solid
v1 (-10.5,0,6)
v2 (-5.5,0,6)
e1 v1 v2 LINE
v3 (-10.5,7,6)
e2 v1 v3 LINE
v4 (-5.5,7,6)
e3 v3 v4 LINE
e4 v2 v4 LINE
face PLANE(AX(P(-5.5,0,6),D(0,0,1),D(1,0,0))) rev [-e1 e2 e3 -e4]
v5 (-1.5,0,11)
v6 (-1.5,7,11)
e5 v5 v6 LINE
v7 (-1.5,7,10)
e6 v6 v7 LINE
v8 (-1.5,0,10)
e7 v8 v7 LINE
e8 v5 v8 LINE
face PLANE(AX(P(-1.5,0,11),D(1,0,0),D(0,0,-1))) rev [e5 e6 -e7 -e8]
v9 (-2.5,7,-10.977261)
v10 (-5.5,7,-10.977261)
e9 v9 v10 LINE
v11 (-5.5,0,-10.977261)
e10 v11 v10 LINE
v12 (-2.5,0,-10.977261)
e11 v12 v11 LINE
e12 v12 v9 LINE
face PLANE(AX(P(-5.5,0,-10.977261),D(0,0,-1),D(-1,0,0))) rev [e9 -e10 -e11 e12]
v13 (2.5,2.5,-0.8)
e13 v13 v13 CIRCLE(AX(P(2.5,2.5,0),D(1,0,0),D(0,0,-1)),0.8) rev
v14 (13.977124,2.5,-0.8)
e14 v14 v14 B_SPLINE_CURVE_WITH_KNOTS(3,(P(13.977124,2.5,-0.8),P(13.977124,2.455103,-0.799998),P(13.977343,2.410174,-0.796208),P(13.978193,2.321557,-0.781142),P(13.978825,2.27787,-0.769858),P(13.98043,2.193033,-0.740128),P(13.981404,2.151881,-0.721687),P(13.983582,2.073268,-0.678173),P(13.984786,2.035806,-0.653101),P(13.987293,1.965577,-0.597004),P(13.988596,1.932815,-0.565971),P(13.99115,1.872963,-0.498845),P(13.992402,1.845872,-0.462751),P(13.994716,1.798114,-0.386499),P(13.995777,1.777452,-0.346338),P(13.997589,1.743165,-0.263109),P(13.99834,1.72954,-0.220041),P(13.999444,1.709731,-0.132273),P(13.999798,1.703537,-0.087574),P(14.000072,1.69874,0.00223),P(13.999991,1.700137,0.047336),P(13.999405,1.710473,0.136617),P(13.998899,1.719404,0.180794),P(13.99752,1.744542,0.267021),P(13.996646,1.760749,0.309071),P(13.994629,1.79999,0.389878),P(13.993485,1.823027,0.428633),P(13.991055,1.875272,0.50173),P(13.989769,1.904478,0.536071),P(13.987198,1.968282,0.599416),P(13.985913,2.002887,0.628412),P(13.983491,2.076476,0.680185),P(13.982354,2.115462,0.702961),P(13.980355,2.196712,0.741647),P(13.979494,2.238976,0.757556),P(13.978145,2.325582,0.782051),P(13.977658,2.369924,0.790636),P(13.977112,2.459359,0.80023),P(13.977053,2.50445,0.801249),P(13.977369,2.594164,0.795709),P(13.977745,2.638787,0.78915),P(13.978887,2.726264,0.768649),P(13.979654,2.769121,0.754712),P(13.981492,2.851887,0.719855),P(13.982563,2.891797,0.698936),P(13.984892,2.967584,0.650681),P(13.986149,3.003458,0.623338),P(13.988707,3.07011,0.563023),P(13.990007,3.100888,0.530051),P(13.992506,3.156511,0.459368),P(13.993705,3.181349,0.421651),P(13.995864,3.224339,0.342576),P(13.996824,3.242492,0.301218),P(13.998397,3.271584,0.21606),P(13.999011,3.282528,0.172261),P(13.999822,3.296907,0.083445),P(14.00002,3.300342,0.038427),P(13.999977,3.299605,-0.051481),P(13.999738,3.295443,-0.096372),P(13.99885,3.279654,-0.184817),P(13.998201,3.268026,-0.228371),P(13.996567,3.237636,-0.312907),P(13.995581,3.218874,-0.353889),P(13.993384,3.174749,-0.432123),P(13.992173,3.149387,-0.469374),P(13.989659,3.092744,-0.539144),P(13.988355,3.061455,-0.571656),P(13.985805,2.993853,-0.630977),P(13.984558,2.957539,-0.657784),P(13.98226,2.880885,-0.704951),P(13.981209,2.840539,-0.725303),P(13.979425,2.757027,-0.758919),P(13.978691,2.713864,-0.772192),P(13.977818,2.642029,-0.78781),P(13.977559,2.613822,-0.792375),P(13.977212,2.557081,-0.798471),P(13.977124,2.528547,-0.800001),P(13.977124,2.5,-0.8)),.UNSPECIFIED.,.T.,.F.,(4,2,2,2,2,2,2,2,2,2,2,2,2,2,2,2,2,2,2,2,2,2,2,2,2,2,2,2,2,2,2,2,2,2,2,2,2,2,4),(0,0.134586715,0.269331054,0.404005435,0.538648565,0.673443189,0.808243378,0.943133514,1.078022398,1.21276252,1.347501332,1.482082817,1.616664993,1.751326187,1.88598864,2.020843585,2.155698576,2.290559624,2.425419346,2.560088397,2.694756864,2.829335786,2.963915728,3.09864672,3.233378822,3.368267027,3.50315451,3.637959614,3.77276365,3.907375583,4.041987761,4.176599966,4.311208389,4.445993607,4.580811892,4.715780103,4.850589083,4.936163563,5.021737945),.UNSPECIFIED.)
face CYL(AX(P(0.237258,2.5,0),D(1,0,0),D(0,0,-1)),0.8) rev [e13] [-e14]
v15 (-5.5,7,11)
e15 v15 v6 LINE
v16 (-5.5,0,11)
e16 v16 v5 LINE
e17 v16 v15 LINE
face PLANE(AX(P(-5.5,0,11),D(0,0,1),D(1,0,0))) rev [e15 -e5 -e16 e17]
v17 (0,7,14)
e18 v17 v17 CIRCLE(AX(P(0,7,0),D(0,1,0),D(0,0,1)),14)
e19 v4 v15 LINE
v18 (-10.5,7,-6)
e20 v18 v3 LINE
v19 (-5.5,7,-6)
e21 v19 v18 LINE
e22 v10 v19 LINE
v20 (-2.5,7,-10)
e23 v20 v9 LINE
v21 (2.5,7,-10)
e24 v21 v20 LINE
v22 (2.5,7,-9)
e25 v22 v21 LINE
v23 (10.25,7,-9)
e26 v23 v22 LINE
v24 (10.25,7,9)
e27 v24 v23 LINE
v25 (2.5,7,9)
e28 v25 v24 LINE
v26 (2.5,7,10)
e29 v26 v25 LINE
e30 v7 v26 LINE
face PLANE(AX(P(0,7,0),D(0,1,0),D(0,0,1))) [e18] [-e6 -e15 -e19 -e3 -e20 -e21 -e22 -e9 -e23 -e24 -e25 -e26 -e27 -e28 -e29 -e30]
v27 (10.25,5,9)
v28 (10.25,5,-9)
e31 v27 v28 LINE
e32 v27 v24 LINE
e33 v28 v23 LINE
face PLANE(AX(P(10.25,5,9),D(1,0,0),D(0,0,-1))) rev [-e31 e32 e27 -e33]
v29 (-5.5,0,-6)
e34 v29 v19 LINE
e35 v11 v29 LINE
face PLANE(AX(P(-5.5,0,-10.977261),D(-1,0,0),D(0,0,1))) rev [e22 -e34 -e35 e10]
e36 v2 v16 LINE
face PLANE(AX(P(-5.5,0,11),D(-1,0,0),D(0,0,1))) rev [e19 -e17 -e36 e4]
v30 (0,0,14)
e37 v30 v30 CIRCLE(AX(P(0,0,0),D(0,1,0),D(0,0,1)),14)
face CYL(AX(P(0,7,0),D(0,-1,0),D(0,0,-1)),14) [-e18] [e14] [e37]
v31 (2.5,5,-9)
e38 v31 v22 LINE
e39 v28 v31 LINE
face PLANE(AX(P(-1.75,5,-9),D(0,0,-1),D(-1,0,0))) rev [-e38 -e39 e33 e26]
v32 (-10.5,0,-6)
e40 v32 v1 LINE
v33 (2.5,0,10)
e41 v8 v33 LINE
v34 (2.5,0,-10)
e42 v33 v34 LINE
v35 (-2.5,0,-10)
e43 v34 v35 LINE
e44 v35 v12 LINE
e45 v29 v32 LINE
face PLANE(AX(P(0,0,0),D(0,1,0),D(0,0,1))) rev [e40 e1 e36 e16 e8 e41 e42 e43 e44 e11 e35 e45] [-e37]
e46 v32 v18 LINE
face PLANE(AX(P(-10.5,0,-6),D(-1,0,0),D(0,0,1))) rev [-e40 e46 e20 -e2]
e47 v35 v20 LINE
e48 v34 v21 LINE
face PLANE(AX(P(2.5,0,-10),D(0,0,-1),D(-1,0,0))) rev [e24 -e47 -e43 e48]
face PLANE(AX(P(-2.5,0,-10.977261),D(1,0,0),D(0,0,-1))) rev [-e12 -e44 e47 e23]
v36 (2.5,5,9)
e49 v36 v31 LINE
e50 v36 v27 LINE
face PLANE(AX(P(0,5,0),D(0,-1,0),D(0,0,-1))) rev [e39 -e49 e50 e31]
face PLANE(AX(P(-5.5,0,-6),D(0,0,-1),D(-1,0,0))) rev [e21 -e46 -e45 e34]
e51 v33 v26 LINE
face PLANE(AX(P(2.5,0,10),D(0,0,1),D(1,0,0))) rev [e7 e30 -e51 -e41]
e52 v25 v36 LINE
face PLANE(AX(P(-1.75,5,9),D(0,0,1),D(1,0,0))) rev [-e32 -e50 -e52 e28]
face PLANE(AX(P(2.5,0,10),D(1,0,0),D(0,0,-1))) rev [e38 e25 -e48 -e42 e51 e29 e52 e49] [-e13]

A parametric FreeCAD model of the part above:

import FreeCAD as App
import Part
import Sketcher
Q = App.Units.Quantity


def add_polygon(sketch, points):
    """Adds a closed chain of lines whose ends are joined by coincident constraints."""
    first, n = sketch.GeometryCount, len(points)
    for a, b in zip(points, points[1:] + points[:1]):
        sketch.addGeometry(Part.LineSegment(App.Vector(*a, 0), App.Vector(*b, 0)), False)
    for i in range(n):
        sketch.addConstraint(Sketcher.Constraint("Coincident", first + i, 2, first + (i + 1) % n, 1))

doc = App.newDocument("Part")
body = doc.addObject("PartDesign::Body", "Body")

sketch1 = doc.addObject("Sketcher::SketchObject", "Sketch")
body.addObject(sketch1)
sketch1.AttachmentSupport = (doc.XZ_Plane, [""])
sketch1.MapMode = "FlatFace"
sketch1.addGeometry(Part.Circle(App.Vector(0, 0, 0), App.Vector(0, 0, 1), 14), False)
sketch1.addConstraint([
    Sketcher.Constraint("Coincident", 0, 3, -1, 1),
    Sketcher.Constraint("Diameter", 0, Q("28 mm")),
])
pad1 = doc.addObject("PartDesign::Pad", "Pad")
body.addObject(pad1)
pad1.Profile = sketch1
pad1.Length = 7
pad1.Reversed = True

sketch2 = doc.addObject("Sketcher::SketchObject", "Sketch001")
body.addObject(sketch2)
sketch2.AttachmentSupport = (doc.XZ_Plane, [""])
sketch2.MapMode = "FlatFace"
sketch2.AttachmentOffset = App.Placement(App.Vector(0, 0, -7), App.Rotation())
add_polygon(sketch2, [(-2.5, -10), (-2.5, -11), (-5.5, -11), (-5.5, -6), (-10.5, -6), (-10.5, 6), (-5.5, 6), (-5.5, 11), (-1.5, 11), (-1.5, 10), (2.5, 10), (2.5, -10)])
sketch2.addConstraint([
    Sketcher.Constraint("Vertical", 0),
    Sketcher.Constraint("Horizontal", 1),
    Sketcher.Constraint("Vertical", 2),
    Sketcher.Constraint("Horizontal", 3),
    Sketcher.Constraint("Vertical", 4),
    Sketcher.Constraint("Horizontal", 5),
    Sketcher.Constraint("Vertical", 6),
    Sketcher.Constraint("Horizontal", 7),
    Sketcher.Constraint("Vertical", 8),
    Sketcher.Constraint("Horizontal", 9),
    Sketcher.Constraint("Vertical", 10),
    Sketcher.Constraint("Horizontal", 11),
    Sketcher.Constraint("Symmetric", 9, 2, 11, 2, -1, 1),
    Sketcher.Constraint("Symmetric", 2, 2, 5, 2, -1),
    Sketcher.Constraint("Equal", 7, 9),
    Sketcher.Constraint("Equal", 5, 11),
    Sketcher.Constraint("Equal", 11, 6),
    Sketcher.Constraint("DistanceX", 1, 2, 1, 1, Q("3 mm")),
    Sketcher.Constraint("DistanceX", 3, 2, 3, 1, Q("5 mm")),
    Sketcher.Constraint("DistanceY", 4, 1, 4, 2, Q("12 mm")),
    Sketcher.Constraint("DistanceY", 8, 2, 8, 1, Q("1 mm")),
    Sketcher.Constraint("DistanceY", 0, 2, 0, 1, Q("0.977261 mm")),
])
pocket1 = doc.addObject("PartDesign::Pocket", "Pocket")
body.addObject(pocket1)
pocket1.Profile = sketch2
pocket1.Type = "ThroughAll"
pocket1.Reversed = True

sketch3 = doc.addObject("Sketcher::SketchObject", "Sketch002")
body.addObject(sketch3)
sketch3.AttachmentSupport = (doc.XZ_Plane, [""])
sketch3.MapMode = "FlatFace"
sketch3.AttachmentOffset = App.Placement(App.Vector(0, 0, -7), App.Rotation())
add_polygon(sketch3, [(-2, -9), (-2, 9), (10, 9), (10, -9)])
sketch3.addConstraint([
    Sketcher.Constraint("Vertical", 0),
    Sketcher.Constraint("Horizontal", 1),
    Sketcher.Constraint("Vertical", 2),
    Sketcher.Constraint("Horizontal", 3),
    Sketcher.Constraint("DistanceX", 1, 1, 1, 2, Q("12 mm")),
    Sketcher.Constraint("DistanceY", 0, 1, 0, 2, Q("18 mm")),
    Sketcher.Constraint("DistanceY", -1, 1, 0, 2, Q("9 mm")),
    Sketcher.Constraint("DistanceX", 0, 2, -1, 1, Q("1.75 mm")),
])
pocket2 = doc.addObject("PartDesign::Pocket", "Pocket001")
body.addObject(pocket2)
pocket2.Profile = sketch3
pocket2.Length = 2
pocket2.Reversed = True

sketch4 = doc.addObject("Sketcher::SketchObject", "Sketch003")
body.addObject(sketch4)
sketch4.AttachmentSupport = (doc.YZ_Plane, [""])
sketch4.MapMode = "FlatFace"
sketch4.AttachmentOffset = App.Placement(App.Vector(0, 0, 14), App.Rotation())
sketch4.addGeometry(Part.Circle(App.Vector(2.5, 0, 0), App.Vector(0, 0, 1), 0.8), False)
sketch4.addConstraint([
    Sketcher.Constraint("PointOnObject", 0, 3, -1),
    Sketcher.Constraint("Diameter", 0, Q("1.6 mm")),
    Sketcher.Constraint("DistanceX", -1, 1, 0, 3, Q("2.5 mm")),
])
pocket3 = doc.addObject("PartDesign::Pocket", "Pocket002")
body.addObject(pocket3)
pocket3.Profile = sketch4
pocket3.Length = 11.5

doc.recompute()
